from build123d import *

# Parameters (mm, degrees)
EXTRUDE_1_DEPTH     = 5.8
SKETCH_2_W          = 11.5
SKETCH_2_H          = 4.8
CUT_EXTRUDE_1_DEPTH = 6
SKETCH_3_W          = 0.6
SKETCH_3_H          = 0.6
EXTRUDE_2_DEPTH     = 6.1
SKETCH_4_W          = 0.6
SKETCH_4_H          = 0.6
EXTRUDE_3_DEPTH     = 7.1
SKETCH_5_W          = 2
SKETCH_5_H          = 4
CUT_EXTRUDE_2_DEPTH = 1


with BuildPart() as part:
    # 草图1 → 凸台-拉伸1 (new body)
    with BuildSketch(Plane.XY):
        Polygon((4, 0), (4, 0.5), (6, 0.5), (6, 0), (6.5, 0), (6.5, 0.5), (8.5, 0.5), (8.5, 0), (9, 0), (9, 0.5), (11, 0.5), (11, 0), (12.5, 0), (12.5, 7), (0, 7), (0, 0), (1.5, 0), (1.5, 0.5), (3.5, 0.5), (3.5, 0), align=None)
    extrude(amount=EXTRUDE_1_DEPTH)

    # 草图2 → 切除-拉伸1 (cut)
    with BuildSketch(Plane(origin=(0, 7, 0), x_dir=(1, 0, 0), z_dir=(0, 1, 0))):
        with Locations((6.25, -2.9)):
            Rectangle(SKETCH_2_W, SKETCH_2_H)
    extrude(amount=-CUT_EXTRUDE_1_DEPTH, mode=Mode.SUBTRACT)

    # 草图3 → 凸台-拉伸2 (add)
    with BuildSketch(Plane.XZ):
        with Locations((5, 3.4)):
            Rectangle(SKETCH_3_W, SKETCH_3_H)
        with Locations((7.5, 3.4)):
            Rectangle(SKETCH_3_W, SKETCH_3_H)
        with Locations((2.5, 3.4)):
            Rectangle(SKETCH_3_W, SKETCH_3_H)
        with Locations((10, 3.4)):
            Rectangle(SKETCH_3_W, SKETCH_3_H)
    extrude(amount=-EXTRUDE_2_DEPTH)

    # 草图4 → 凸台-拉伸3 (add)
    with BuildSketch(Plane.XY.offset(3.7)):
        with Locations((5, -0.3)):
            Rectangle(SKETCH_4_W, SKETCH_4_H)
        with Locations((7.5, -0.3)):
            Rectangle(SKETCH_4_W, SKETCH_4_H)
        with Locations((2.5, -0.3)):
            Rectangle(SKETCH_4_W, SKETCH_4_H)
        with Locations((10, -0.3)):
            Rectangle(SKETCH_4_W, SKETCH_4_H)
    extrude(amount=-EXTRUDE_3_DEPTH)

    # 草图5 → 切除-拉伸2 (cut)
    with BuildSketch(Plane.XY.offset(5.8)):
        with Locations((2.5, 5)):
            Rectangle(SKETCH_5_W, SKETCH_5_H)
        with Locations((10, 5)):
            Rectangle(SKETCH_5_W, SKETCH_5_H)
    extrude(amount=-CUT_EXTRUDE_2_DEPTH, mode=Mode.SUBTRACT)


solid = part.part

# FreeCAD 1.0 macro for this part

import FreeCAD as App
import Part
import Sketcher
from FreeCAD import Vector
Q = App.Units.Quantity

doc = App.newDocument("Part")
body = doc.addObject("PartDesign::Body", "Body")

# Sketch on XY plane
sketch1 = body.newObject("Sketcher::SketchObject", "Sketch")
sketch1.AttachmentSupport = (doc.getObject("XY_Plane"), [""])
sketch1.MapMode = "FlatFace"
sketch1.addGeometry(Part.LineSegment(Vector(4, 0, 0), Vector(4, 0.5, 0)), False)
sketch1.addGeometry(Part.LineSegment(Vector(4, 0.5, 0), Vector(6, 0.5, 0)), False)
sketch1.addGeometry(Part.LineSegment(Vector(6, 0.5, 0), Vector(6, 0, 0)), False)
sketch1.addGeometry(Part.LineSegment(Vector(6, 0, 0), Vector(6.5, 0, 0)), False)
sketch1.addGeometry(Part.LineSegment(Vector(6.5, 0, 0), Vector(6.5, 0.5, 0)), False)
sketch1.addGeometry(Part.LineSegment(Vector(6.5, 0.5, 0), Vector(8.5, 0.5, 0)), False)
sketch1.addGeometry(Part.LineSegment(Vector(8.5, 0.5, 0), Vector(8.5, 0, 0)), False)
sketch1.addGeometry(Part.LineSegment(Vector(8.5, 0, 0), Vector(9, 0, 0)), False)
sketch1.addGeometry(Part.LineSegment(Vector(9, 0, 0), Vector(9, 0.5, 0)), False)
sketch1.addGeometry(Part.LineSegment(Vector(9, 0.5, 0), Vector(11, 0.5, 0)), False)
sketch1.addGeometry(Part.LineSegment(Vector(11, 0.5, 0), Vector(11, 0, 0)), False)
sketch1.addGeometry(Part.LineSegment(Vector(11, 0, 0), Vector(12.5, 0, 0)), False)
sketch1.addGeometry(Part.LineSegment(Vector(12.5, 0, 0), Vector(12.5, 7, 0)), False)
sketch1.addGeometry(Part.LineSegment(Vector(12.5, 7, 0), Vector(0, 7, 0)), False)
sketch1.addGeometry(Part.LineSegment(Vector(0, 7, 0), Vector(0, 0, 0)), False)
sketch1.addGeometry(Part.LineSegment(Vector(0, 0, 0), Vector(1.5, 0, 0)), False)
sketch1.addGeometry(Part.LineSegment(Vector(1.5, 0, 0), Vector(1.5, 0.5, 0)), False)
sketch1.addGeometry(Part.LineSegment(Vector(1.5, 0.5, 0), Vector(3.5, 0.5, 0)), False)
sketch1.addGeometry(Part.LineSegment(Vector(3.5, 0.5, 0), Vector(3.5, 0, 0)), False)
sketch1.addGeometry(Part.LineSegment(Vector(3.5, 0, 0), Vector(4, 0, 0)), False)
sketch1.addConstraint(Sketcher.Constraint("Coincident", 0, 2, 1, 1))
sketch1.addConstraint(Sketcher.Constraint("Coincident", 1, 2, 2, 1))
sketch1.addConstraint(Sketcher.Constraint("Coincident", 2, 2, 3, 1))
sketch1.addConstraint(Sketcher.Constraint("Coincident", 3, 2, 4, 1))
sketch1.addConstraint(Sketcher.Constraint("Coincident", 4, 2, 5, 1))
sketch1.addConstraint(Sketcher.Constraint("Coincident", 5, 2, 6, 1))
sketch1.addConstraint(Sketcher.Constraint("Coincident", 6, 2, 7, 1))
sketch1.addConstraint(Sketcher.Constraint("Coincident", 7, 2, 8, 1))
sketch1.addConstraint(Sketcher.Constraint("Coincident", 8, 2, 9, 1))
sketch1.addConstraint(Sketcher.Constraint("Coincident", 9, 2, 10, 1))
sketch1.addConstraint(Sketcher.Constraint("Coincident", 10, 2, 11, 1))
sketch1.addConstraint(Sketcher.Constraint("Coincident", 11, 2, 12, 1))
sketch1.addConstraint(Sketcher.Constraint("Coincident", 12, 2, 13, 1))
sketch1.addConstraint(Sketcher.Constraint("Coincident", 13, 2, 14, 1))
sketch1.addConstraint(Sketcher.Constraint("Coincident", 14, 2, 15, 1))
sketch1.addConstraint(Sketcher.Constraint("Coincident", 15, 2, 16, 1))
sketch1.addConstraint(Sketcher.Constraint("Coincident", 16, 2, 17, 1))
sketch1.addConstraint(Sketcher.Constraint("Coincident", 17, 2, 18, 1))
sketch1.addConstraint(Sketcher.Constraint("Coincident", 18, 2, 19, 1))
sketch1.addConstraint(Sketcher.Constraint("Coincident", 19, 2, 0, 1))
sketch1.addConstraint(Sketcher.Constraint("Vertical", 0))
sketch1.addConstraint(Sketcher.Constraint("Horizontal", 1))
sketch1.addConstraint(Sketcher.Constraint("Vertical", 2))
sketch1.addConstraint(Sketcher.Constraint("Horizontal", 3))
sketch1.addConstraint(Sketcher.Constraint("Vertical", 4))
sketch1.addConstraint(Sketcher.Constraint("Horizontal", 5))
sketch1.addConstraint(Sketcher.Constraint("Vertical", 6))
sketch1.addConstraint(Sketcher.Constraint("Horizontal", 7))
sketch1.addConstraint(Sketcher.Constraint("Vertical", 8))
sketch1.addConstraint(Sketcher.Constraint("Horizontal", 9))
sketch1.addConstraint(Sketcher.Constraint("Vertical", 10))
sketch1.addConstraint(Sketcher.Constraint("Horizontal", 11))
sketch1.addConstraint(Sketcher.Constraint("Vertical", 12))
sketch1.addConstraint(Sketcher.Constraint("Horizontal", 13))
sketch1.addConstraint(Sketcher.Constraint("Vertical", 14))
sketch1.addConstraint(Sketcher.Constraint("Horizontal", 15))
sketch1.addConstraint(Sketcher.Constraint("Vertical", 16))
sketch1.addConstraint(Sketcher.Constraint("Horizontal", 17))
sketch1.addConstraint(Sketcher.Constraint("Vertical", 18))
sketch1.addConstraint(Sketcher.Constraint("Horizontal", 19))
sketch1.addConstraint(Sketcher.Constraint("Coincident", 14, 2, -1, 1))
sketch1.addConstraint(Sketcher.Constraint("PointOnObject", 2, 2, -1))
sketch1.addConstraint(Sketcher.Constraint("PointOnObject", 6, 2, -1))
sketch1.addConstraint(Sketcher.Constraint("PointOnObject", 10, 2, -1))
sketch1.addConstraint(Sketcher.Constraint("PointOnObject", 18, 2, -1))
sketch1.addConstraint(Sketcher.Constraint("Horizontal", 1, 2, 4, 2))
sketch1.addConstraint(Sketcher.Constraint("Horizontal", 5, 2, 8, 2))
sketch1.addConstraint(Sketcher.Constraint("Horizontal", 9, 2, 16, 2))
sketch1.addConstraint(Sketcher.Constraint("Equal", 1, 5))
sketch1.addConstraint(Sketcher.Constraint("Equal", 3, 7))
sketch1.addConstraint(Sketcher.Constraint("Equal", 5, 9))
sketch1.addConstraint(Sketcher.Constraint("Equal", 11, 15))
sketch1.addConstraint(Sketcher.Constraint("Equal", 9, 17))
sketch1.addConstraint(Sketcher.Constraint("Equal", 7, 19))
sketch1.addConstraint(Sketcher.Constraint("Equal", 19, 0))
sketch1.addConstraint(Sketcher.Constraint("DistanceX", 1, 1, 1, 2, Q("2 mm")))
sketch1.addConstraint(Sketcher.Constraint("DistanceY", 12, 1, 12, 2, Q("7 mm")))
sketch1.addConstraint(Sketcher.Constraint("DistanceX", 3, 1, 3, 2, Q("0.5 mm")))
sketch1.addConstraint(Sketcher.Constraint("DistanceX", 11, 1, 11, 2, Q("1.5 mm")))
pad1 = body.newObject("PartDesign::Pad", "Pad")
pad1.Profile = sketch1
pad1.Length = 5.8

# Sketch on XZ plane
sketch2 = body.newObject("Sketcher::SketchObject", "Sketch001")
sketch2.AttachmentSupport = (doc.getObject("XZ_Plane"), [""])
sketch2.MapMode = "FlatFace"
sketch2.AttachmentOffset = App.Placement(Vector(0, 0, -7), App.Rotation())
sketch2.addGeometry(Part.LineSegment(Vector(0.5, 0.5, 0), Vector(0.5, 5.3, 0)), False)
sketch2.addGeometry(Part.LineSegment(Vector(0.5, 5.3, 0), Vector(12, 5.3, 0)), False)
sketch2.addGeometry(Part.LineSegment(Vector(12, 5.3, 0), Vector(12, 0.5, 0)), False)
sketch2.addGeometry(Part.LineSegment(Vector(12, 0.5, 0), Vector(0.5, 0.5, 0)), False)
sketch2.addConstraint(Sketcher.Constraint("Coincident", 0, 2, 1, 1))
sketch2.addConstraint(Sketcher.Constraint("Coincident", 1, 2, 2, 1))
sketch2.addConstraint(Sketcher.Constraint("Coincident", 2, 2, 3, 1))
sketch2.addConstraint(Sketcher.Constraint("Coincident", 3, 2, 0, 1))
sketch2.addConstraint(Sketcher.Constraint("Vertical", 0))
sketch2.addConstraint(Sketcher.Constraint("Horizontal", 1))
sketch2.addConstraint(Sketcher.Constraint("Vertical", 2))
sketch2.addConstraint(Sketcher.Constraint("Horizontal", 3))
sketch2.addConstraint(Sketcher.Constraint("DistanceX", 1, 1, 1, 2, Q("11.5 mm")))
sketch2.addConstraint(Sketcher.Constraint("DistanceY", 0, 1, 0, 2, Q("4.8 mm")))
sketch2.addConstraint(Sketcher.Constraint("DistanceX", -1, 1, 1, 2, Q("12 mm")))
sketch2.addConstraint(Sketcher.Constraint("DistanceY", -1, 1, 0, 2, Q("5.3 mm")))
pocket1 = body.newObject("PartDesign::Pocket", "Pocket")
pocket1.Profile = sketch2
pocket1.Length = 6
pocket1.Reversed = True

# Sketch on XZ plane
sketch3 = body.newObject("Sketcher::SketchObject", "Sketch002")
sketch3.AttachmentSupport = (doc.getObject("XZ_Plane"), [""])
sketch3.MapMode = "FlatFace"
sketch3.addGeometry(Part.LineSegment(Vector(4.7, 3.7, 0), Vector(4.7, 3.1, 0)), False)
sketch3.addGeometry(Part.LineSegment(Vector(4.7, 3.1, 0), Vector(5.3, 3.1, 0)), False)
sketch3.addGeometry(Part.LineSegment(Vector(5.3, 3.1, 0), Vector(5.3, 3.7, 0)), False)
sketch3.addGeometry(Part.LineSegment(Vector(5.3, 3.7, 0), Vector(4.7, 3.7, 0)), False)
sketch3.addGeometry(Part.LineSegment(Vector(7.2, 3.7, 0), Vector(7.2, 3.1, 0)), False)
sketch3.addGeometry(Part.LineSegment(Vector(7.2, 3.1, 0), Vector(7.8, 3.1, 0)), False)
sketch3.addGeometry(Part.LineSegment(Vector(7.8, 3.1, 0), Vector(7.8, 3.7, 0)), False)
sketch3.addGeometry(Part.LineSegment(Vector(7.8, 3.7, 0), Vector(7.2, 3.7, 0)), False)
sketch3.addGeometry(Part.LineSegment(Vector(2.2, 3.7, 0), Vector(2.2, 3.1, 0)), False)
sketch3.addGeometry(Part.LineSegment(Vector(2.2, 3.1, 0), Vector(2.8, 3.1, 0)), False)
sketch3.addGeometry(Part.LineSegment(Vector(2.8, 3.1, 0), Vector(2.8, 3.7, 0)), False)
sketch3.addGeometry(Part.LineSegment(Vector(2.8, 3.7, 0), Vector(2.2, 3.7, 0)), False)
sketch3.addGeometry(Part.LineSegment(Vector(9.7, 3.7, 0), Vector(9.7, 3.1, 0)), False)
sketch3.addGeometry(Part.LineSegment(Vector(9.7, 3.1, 0), Vector(10.3, 3.1, 0)), False)
sketch3.addGeometry(Part.LineSegment(Vector(10.3, 3.1, 0), Vector(10.3, 3.7, 0)), False)
sketch3.addGeometry(Part.LineSegment(Vector(10.3, 3.7, 0), Vector(9.7, 3.7, 0)), False)
sketch3.addConstraint(Sketcher.Constraint("Coincident", 0, 2, 1, 1))
sketch3.addConstraint(Sketcher.Constraint("Coincident", 1, 2, 2, 1))
sketch3.addConstraint(Sketcher.Constraint("Coincident", 2, 2, 3, 1))
sketch3.addConstraint(Sketcher.Constraint("Coincident", 3, 2, 0, 1))
sketch3.addConstraint(Sketcher.Constraint("Coincident", 4, 2, 5, 1))
sketch3.addConstraint(Sketcher.Constraint("Coincident", 5, 2, 6, 1))
sketch3.addConstraint(Sketcher.Constraint("Coincident", 6, 2, 7, 1))
sketch3.addConstraint(Sketcher.Constraint("Coincident", 7, 2, 4, 1))
sketch3.addConstraint(Sketcher.Constraint("Coincident", 8, 2, 9, 1))
sketch3.addConstraint(Sketcher.Constraint("Coincident", 9, 2, 10, 1))
sketch3.addConstraint(Sketcher.Constraint("Coincident", 10, 2, 11, 1))
sketch3.addConstraint(Sketcher.Constraint("Coincident", 11, 2, 8, 1))
sketch3.addConstraint(Sketcher.Constraint("Coincident", 12, 2, 13, 1))
sketch3.addConstraint(Sketcher.Constraint("Coincident", 13, 2, 14, 1))
sketch3.addConstraint(Sketcher.Constraint("Coincident", 14, 2, 15, 1))
sketch3.addConstraint(Sketcher.Constraint("Coincident", 15, 2, 12, 1))
sketch3.addConstraint(Sketcher.Constraint("Vertical", 0))
sketch3.addConstraint(Sketcher.Constraint("Horizontal", 1))
sketch3.addConstraint(Sketcher.Constraint("Vertical", 2))
sketch3.addConstraint(Sketcher.Constraint("Horizontal", 3))
sketch3.addConstraint(Sketcher.Constraint("Vertical", 4))
sketch3.addConstraint(Sketcher.Constraint("Horizontal", 5))
sketch3.addConstraint(Sketcher.Constraint("Vertical", 6))
sketch3.addConstraint(Sketcher.Constraint("Horizontal", 7))
sketch3.addConstraint(Sketcher.Constraint("Vertical", 8))
sketch3.addConstraint(Sketcher.Constraint("Horizontal", 9))
sketch3.addConstraint(Sketcher.Constraint("Vertical", 10))
sketch3.addConstraint(Sketcher.Constraint("Horizontal", 11))
sketch3.addConstraint(Sketcher.Constraint("Vertical", 12))
sketch3.addConstraint(Sketcher.Constraint("Horizontal", 13))
sketch3.addConstraint(Sketcher.Constraint("Vertical", 14))
sketch3.addConstraint(Sketcher.Constraint("Horizontal", 15))
sketch3.addConstraint(Sketcher.Constraint("Horizontal", 1, 2, 4, 2))
sketch3.addConstraint(Sketcher.Constraint("Horizontal", 3, 2, 6, 2))
sketch3.addConstraint(Sketcher.Constraint("Horizontal", 5, 2, 8, 2))
sketch3.addConstraint(Sketcher.Constraint("Horizontal", 7, 2, 10, 2))
sketch3.addConstraint(Sketcher.Constraint("Horizontal", 9, 2, 12, 2))
sketch3.addConstraint(Sketcher.Constraint("Horizontal", 11, 2, 14, 2))
sketch3.addConstraint(Sketcher.Constraint("Equal", 3, 5))
sketch3.addConstraint(Sketcher.Constraint("Equal", 7, 9))
sketch3.addConstraint(Sketcher.Constraint("Equal", 11, 13))
sketch3.addConstraint(Sketcher.Constraint("Equal", 15, 0))
sketch3.addConstraint(Sketcher.Constraint("DistanceX", 1, 1, 1, 2, Q("0.6 mm")))
sketch3.addConstraint(Sketcher.Constraint("DistanceX", 8, 2, 4, 2, Q("5 mm")))
sketch3.addConstraint(Sketcher.Constraint("DistanceX", -1, 1, 0, 2, Q("4.7 mm")))
sketch3.addConstraint(Sketcher.Constraint("DistanceY", -1, 1, 0, 2, Q("3.1 mm")))
sketch3.addConstraint(Sketcher.Constraint("DistanceX", -1, 1, 4, 2, Q("7.2 mm")))
sketch3.addConstraint(Sketcher.Constraint("DistanceX", -1, 1, 12, 2, Q("9.7 mm")))
pad2 = body.newObject("PartDesign::Pad", "Pad001")
pad2.Profile = sketch3
pad2.Length = 6.1
pad2.Reversed = True

# Sketch on XY plane
sketch4 = body.newObject("Sketcher::SketchObject", "Sketch003")
sketch4.AttachmentSupport = (doc.getObject("XY_Plane"), [""])
sketch4.MapMode = "FlatFace"
sketch4.AttachmentOffset = App.Placement(Vector(0, 0, 3.7), App.Rotation())
sketch4.addGeometry(Part.LineSegment(Vector(4.7, 0, 0), Vector(4.7, -0.6, 0)), False)
sketch4.addGeometry(Part.LineSegment(Vector(4.7, -0.6, 0), Vector(5.3, -0.6, 0)), False)
sketch4.addGeometry(Part.LineSegment(Vector(5.3, -0.6, 0), Vector(5.3, 0, 0)), False)
sketch4.addGeometry(Part.LineSegment(Vector(5.3, 0, 0), Vector(4.7, 0, 0)), False)
sketch4.addGeometry(Part.LineSegment(Vector(7.2, 0, 0), Vector(7.2, -0.6, 0)), False)
sketch4.addGeometry(Part.LineSegment(Vector(7.2, -0.6, 0), Vector(7.8, -0.6, 0)), False)
sketch4.addGeometry(Part.LineSegment(Vector(7.8, -0.6, 0), Vector(7.8, 0, 0)), False)
sketch4.addGeometry(Part.LineSegment(Vector(7.8, 0, 0), Vector(7.2, 0, 0)), False)
sketch4.addGeometry(Part.LineSegment(Vector(2.2, 0, 0), Vector(2.2, -0.6, 0)), False)
sketch4.addGeometry(Part.LineSegment(Vector(2.2, -0.6, 0), Vector(2.8, -0.6, 0)), False)
sketch4.addGeometry(Part.LineSegment(Vector(2.8, -0.6, 0), Vector(2.8, 0, 0)), False)
sketch4.addGeometry(Part.LineSegment(Vector(2.8, 0, 0), Vector(2.2, 0, 0)), False)
sketch4.addGeometry(Part.LineSegment(Vector(9.7, 0, 0), Vector(9.7, -0.6, 0)), False)
sketch4.addGeometry(Part.LineSegment(Vector(9.7, -0.6, 0), Vector(10.3, -0.6, 0)), False)
sketch4.addGeometry(Part.LineSegment(Vector(10.3, -0.6, 0), Vector(10.3, 0, 0)), False)
sketch4.addGeometry(Part.LineSegment(Vector(10.3, 0, 0), Vector(9.7, 0, 0)), False)
sketch4.addConstraint(Sketcher.Constraint("Coincident", 0, 2, 1, 1))
sketch4.addConstraint(Sketcher.Constraint("Coincident", 1, 2, 2, 1))
sketch4.addConstraint(Sketcher.Constraint("Coincident", 2, 2, 3, 1))
sketch4.addConstraint(Sketcher.Constraint("Coincident", 3, 2, 0, 1))
sketch4.addConstraint(Sketcher.Constraint("Coincident", 4, 2, 5, 1))
sketch4.addConstraint(Sketcher.Constraint("Coincident", 5, 2, 6, 1))
sketch4.addConstraint(Sketcher.Constraint("Coincident", 6, 2, 7, 1))
sketch4.addConstraint(Sketcher.Constraint("Coincident", 7, 2, 4, 1))
sketch4.addConstraint(Sketcher.Constraint("Coincident", 8, 2, 9, 1))
sketch4.addConstraint(Sketcher.Constraint("Coincident", 9, 2, 10, 1))
sketch4.addConstraint(Sketcher.Constraint("Coincident", 10, 2, 11, 1))
sketch4.addConstraint(Sketcher.Constraint("Coincident", 11, 2, 8, 1))
sketch4.addConstraint(Sketcher.Constraint("Coincident", 12, 2, 13, 1))
sketch4.addConstraint(Sketcher.Constraint("Coincident", 13, 2, 14, 1))
sketch4.addConstraint(Sketcher.Constraint("Coincident", 14, 2, 15, 1))
sketch4.addConstraint(Sketcher.Constraint("Coincident", 15, 2, 12, 1))
sketch4.addConstraint(Sketcher.Constraint("Vertical", 0))
sketch4.addConstraint(Sketcher.Constraint("Horizontal", 1))
sketch4.addConstraint(Sketcher.Constraint("Vertical", 2))
sketch4.addConstraint(Sketcher.Constraint("Horizontal", 3))
sketch4.addConstraint(Sketcher.Constraint("Vertical", 4))
sketch4.addConstraint(Sketcher.Constraint("Horizontal", 5))
sketch4.addConstraint(Sketcher.Constraint("Vertical", 6))
sketch4.addConstraint(Sketcher.Constraint("Horizontal", 7))
sketch4.addConstraint(Sketcher.Constraint("Vertical", 8))
sketch4.addConstraint(Sketcher.Constraint("Horizontal", 9))
sketch4.addConstraint(Sketcher.Constraint("Vertical", 10))
sketch4.addConstraint(Sketcher.Constraint("Horizontal", 11))
sketch4.addConstraint(Sketcher.Constraint("Vertical", 12))
sketch4.addConstraint(Sketcher.Constraint("Horizontal", 13))
sketch4.addConstraint(Sketcher.Constraint("Vertical", 14))
sketch4.addConstraint(Sketcher.Constraint("Horizontal", 15))
sketch4.addConstraint(Sketcher.Constraint("PointOnObject", 2, 2, -1))
sketch4.addConstraint(Sketcher.Constraint("PointOnObject", 6, 2, -1))
sketch4.addConstraint(Sketcher.Constraint("PointOnObject", 10, 2, -1))
sketch4.addConstraint(Sketcher.Constraint("PointOnObject", 14, 2, -1))
sketch4.addConstraint(Sketcher.Constraint("Horizontal", 1, 2, 4, 2))
sketch4.addConstraint(Sketcher.Constraint("Horizontal", 5, 2, 8, 2))
sketch4.addConstraint(Sketcher.Constraint("Horizontal", 9, 2, 12, 2))
sketch4.addConstraint(Sketcher.Constraint("Equal", 3, 5))
sketch4.addConstraint(Sketcher.Constraint("Equal", 7, 9))
sketch4.addConstraint(Sketcher.Constraint("Equal", 11, 13))
sketch4.addConstraint(Sketcher.Constraint("Equal", 15, 0))
sketch4.addConstraint(Sketcher.Constraint("DistanceX", 1, 1, 1, 2, Q("0.6 mm")))
sketch4.addConstraint(Sketcher.Constraint("DistanceX", 8, 2, 4, 2, Q("5 mm")))
sketch4.addConstraint(Sketcher.Constraint("DistanceX", -1, 1, 0, 2, Q("4.7 mm")))
sketch4.addConstraint(Sketcher.Constraint("DistanceX", -1, 1, 4, 2, Q("7.2 mm")))
sketch4.addConstraint(Sketcher.Constraint("DistanceX", -1, 1, 12, 2, Q("9.7 mm")))
pad3 = body.newObject("PartDesign::Pad", "Pad002")
pad3.Profile = sketch4
pad3.Length = 7.1
pad3.Reversed = True

# Sketch on XY plane
sketch5 = body.newObject("Sketcher::SketchObject", "Sketch004")
sketch5.AttachmentSupport = (doc.getObject("XY_Plane"), [""])
sketch5.MapMode = "FlatFace"
sketch5.AttachmentOffset = App.Placement(Vector(0, 0, 5.8), App.Rotation())
sketch5.addGeometry(Part.LineSegment(Vector(1.5, 7, 0), Vector(1.5, 3, 0)), False)
sketch5.addGeometry(Part.LineSegment(Vector(1.5, 3, 0), Vector(3.5, 3, 0)), False)
sketch5.addGeometry(Part.LineSegment(Vector(3.5, 3, 0), Vector(3.5, 7, 0)), False)
sketch5.addGeometry(Part.LineSegment(Vector(3.5, 7, 0), Vector(1.5, 7, 0)), False)
sketch5.addGeometry(Part.LineSegment(Vector(9, 7, 0), Vector(9, 3, 0)), False)
sketch5.addGeometry(Part.LineSegment(Vector(9, 3, 0), Vector(11, 3, 0)), False)
sketch5.addGeometry(Part.LineSegment(Vector(11, 3, 0), Vector(11, 7, 0)), False)
sketch5.addGeometry(Part.LineSegment(Vector(11, 7, 0), Vector(9, 7, 0)), False)
sketch5.addConstraint(Sketcher.Constraint("Coincident", 0, 2, 1, 1))
sketch5.addConstraint(Sketcher.Constraint("Coincident", 1, 2, 2, 1))
sketch5.addConstraint(Sketcher.Constraint("Coincident", 2, 2, 3, 1))
sketch5.addConstraint(Sketcher.Constraint("Coincident", 3, 2, 0, 1))
sketch5.addConstraint(Sketcher.Constraint("Coincident", 4, 2, 5, 1))
sketch5.addConstraint(Sketcher.Constraint("Coincident", 5, 2, 6, 1))
sketch5.addConstraint(Sketcher.Constraint("Coincident", 6, 2, 7, 1))
sketch5.addConstraint(Sketcher.Constraint("Coincident", 7, 2, 4, 1))
sketch5.addConstraint(Sketcher.Constraint("Vertical", 0))
sketch5.addConstraint(Sketcher.Constraint("Horizontal", 1))
sketch5.addConstraint(Sketcher.Constraint("Vertical", 2))
sketch5.addConstraint(Sketcher.Constraint("Horizontal", 3))
sketch5.addConstraint(Sketcher.Constraint("Vertical", 4))
sketch5.addConstraint(Sketcher.Constraint("Horizontal", 5))
sketch5.addConstraint(Sketcher.Constraint("Vertical", 6))
sketch5.addConstraint(Sketcher.Constraint("Horizontal", 7))
sketch5.addConstraint(Sketcher.Constraint("Horizontal", 1, 2, 4, 2))
sketch5.addConstraint(Sketcher.Constraint("Horizontal", 3, 2, 6, 2))
sketch5.addConstraint(Sketcher.Constraint("Equal", 3, 5))
sketch5.addConstraint(Sketcher.Constraint("DistanceX", 1, 1, 1, 2, Q("2 mm")))
sketch5.addConstraint(Sketcher.Constraint("DistanceY", 0, 2, 0, 1, Q("4 mm")))
sketch5.addConstraint(Sketcher.Constraint("DistanceY", -1, 1, 0, 2, Q("3 mm")))
sketch5.addConstraint(Sketcher.Constraint("DistanceX", -1, 1, 4, 2, Q("9 mm")))
sketch5.addConstraint(Sketcher.Constraint("DistanceX", -1, 1, 0, 2, Q("1.5 mm")))
pocket2 = body.newObject("PartDesign::Pocket", "Pocket001")
pocket2.Profile = sketch5
pocket2.Length = 1

doc.recompute()
